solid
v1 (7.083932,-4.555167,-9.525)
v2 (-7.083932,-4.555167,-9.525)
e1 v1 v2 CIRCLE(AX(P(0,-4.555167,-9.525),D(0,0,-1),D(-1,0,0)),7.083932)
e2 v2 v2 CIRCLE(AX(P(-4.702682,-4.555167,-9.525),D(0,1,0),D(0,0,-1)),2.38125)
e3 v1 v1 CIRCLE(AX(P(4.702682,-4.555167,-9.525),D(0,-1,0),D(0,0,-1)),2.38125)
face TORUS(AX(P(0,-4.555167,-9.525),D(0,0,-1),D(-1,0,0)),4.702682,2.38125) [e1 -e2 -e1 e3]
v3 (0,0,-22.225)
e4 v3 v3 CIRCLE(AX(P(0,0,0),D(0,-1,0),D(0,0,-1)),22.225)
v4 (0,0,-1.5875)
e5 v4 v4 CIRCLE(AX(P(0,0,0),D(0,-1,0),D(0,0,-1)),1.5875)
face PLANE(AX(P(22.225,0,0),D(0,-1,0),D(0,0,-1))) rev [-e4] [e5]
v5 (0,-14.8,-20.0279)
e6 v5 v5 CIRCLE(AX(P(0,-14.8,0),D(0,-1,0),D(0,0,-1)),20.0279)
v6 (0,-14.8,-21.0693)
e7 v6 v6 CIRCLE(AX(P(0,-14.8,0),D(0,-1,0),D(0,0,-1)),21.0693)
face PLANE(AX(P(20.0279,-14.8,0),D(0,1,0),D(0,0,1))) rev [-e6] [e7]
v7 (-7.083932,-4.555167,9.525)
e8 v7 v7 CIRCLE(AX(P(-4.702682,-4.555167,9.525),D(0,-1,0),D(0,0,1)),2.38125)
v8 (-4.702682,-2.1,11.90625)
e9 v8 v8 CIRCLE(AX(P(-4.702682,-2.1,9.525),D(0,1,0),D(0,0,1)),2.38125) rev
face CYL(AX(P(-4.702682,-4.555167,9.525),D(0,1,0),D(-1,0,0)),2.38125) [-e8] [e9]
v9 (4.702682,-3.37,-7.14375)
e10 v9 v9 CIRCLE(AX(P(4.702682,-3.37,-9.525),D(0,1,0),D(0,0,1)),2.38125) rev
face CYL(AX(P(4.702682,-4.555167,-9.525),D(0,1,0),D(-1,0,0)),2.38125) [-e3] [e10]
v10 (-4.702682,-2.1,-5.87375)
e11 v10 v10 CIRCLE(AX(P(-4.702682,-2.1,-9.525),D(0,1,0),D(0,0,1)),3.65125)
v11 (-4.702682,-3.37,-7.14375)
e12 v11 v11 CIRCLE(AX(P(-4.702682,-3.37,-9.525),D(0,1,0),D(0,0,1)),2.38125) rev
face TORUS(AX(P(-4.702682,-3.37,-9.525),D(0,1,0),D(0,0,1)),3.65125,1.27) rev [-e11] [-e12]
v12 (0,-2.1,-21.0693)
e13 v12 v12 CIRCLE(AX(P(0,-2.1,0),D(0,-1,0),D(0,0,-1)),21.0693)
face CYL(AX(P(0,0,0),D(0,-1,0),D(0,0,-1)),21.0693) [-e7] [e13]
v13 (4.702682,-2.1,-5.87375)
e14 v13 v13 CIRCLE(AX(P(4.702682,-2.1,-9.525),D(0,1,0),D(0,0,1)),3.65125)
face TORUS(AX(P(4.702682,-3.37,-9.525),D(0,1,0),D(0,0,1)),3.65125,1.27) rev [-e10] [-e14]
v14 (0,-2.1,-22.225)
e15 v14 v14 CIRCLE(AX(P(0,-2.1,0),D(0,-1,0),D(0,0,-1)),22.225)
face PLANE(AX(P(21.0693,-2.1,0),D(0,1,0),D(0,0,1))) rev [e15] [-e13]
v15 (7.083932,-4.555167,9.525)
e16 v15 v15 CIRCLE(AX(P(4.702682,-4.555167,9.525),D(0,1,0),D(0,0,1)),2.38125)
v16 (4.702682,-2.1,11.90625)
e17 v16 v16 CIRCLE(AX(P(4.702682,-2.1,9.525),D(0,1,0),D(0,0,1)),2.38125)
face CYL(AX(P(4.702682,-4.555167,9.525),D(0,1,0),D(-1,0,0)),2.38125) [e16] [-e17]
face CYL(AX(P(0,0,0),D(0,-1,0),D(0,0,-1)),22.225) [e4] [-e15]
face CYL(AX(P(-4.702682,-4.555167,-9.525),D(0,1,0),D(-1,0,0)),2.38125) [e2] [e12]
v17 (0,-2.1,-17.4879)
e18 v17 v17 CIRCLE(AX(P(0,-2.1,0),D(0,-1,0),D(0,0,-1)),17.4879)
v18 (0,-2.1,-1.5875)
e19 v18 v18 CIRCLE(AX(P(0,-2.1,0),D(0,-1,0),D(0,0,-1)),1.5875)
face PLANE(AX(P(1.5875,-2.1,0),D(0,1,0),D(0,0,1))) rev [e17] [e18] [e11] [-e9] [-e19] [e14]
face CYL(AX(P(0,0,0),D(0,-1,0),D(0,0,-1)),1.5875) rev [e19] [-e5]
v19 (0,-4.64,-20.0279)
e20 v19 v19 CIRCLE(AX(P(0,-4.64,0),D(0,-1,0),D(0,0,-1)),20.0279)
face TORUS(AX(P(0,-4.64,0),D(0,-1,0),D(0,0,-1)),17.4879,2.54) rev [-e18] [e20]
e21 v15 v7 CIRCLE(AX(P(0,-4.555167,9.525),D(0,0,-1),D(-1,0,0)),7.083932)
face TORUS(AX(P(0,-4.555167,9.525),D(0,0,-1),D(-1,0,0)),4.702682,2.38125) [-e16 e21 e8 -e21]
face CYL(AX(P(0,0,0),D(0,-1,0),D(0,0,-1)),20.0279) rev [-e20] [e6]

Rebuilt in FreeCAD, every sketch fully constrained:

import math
import FreeCAD as App
import Part
import Sketcher

V = App.Vector
Q = App.Units.Quantity


def edges_at(feature, points):
    """Names of the edges that pass closest to the given points."""
    edges = feature.Shape.Edges
    near = lambda p: min(range(len(edges)), key=lambda i: edges[i].distToShape(Part.Vertex(*p))[0])
    return sorted({f"Edge{near(p) + 1}" for p in points})

doc = App.newDocument("Part")
body = doc.addObject("PartDesign::Body", "Body")

sketch1 = doc.addObject("Sketcher::SketchObject", "Sketch")
body.addObject(sketch1)
sketch1.AttachmentSupport = (doc.XY_Plane, [""])
sketch1.MapMode = "FlatFace"
sketch1.addGeometry(Part.LineSegment(V(-21.1, -2.1, 0), V(-21.1, -14.8, 0)), False)
sketch1.addGeometry(Part.LineSegment(V(-21.1, -14.8, 0), V(-20, -14.8, 0)), False)
sketch1.addGeometry(Part.LineSegment(V(-20, -14.8, 0), V(-20, -4.6, 0)), False)
sketch1.addGeometry(Part.ArcOfCircle(Part.Circle(V(-17.5, -4.6, 0), V(0, 0, 1), 2.5), math.radians(90), math.radians(180)), False)
sketch1.addGeometry(Part.LineSegment(V(-17.5, -2.1, 0), V(-1.6, -2.1, 0)), False)
sketch1.addGeometry(Part.LineSegment(V(-1.6, -2.1, 0), V(-1.6, 0, 0)), False)
sketch1.addGeometry(Part.LineSegment(V(-1.6, 0, 0), V(-22.2, 0, 0)), False)
sketch1.addGeometry(Part.LineSegment(V(-22.2, 0, 0), V(-22.2, -2.1, 0)), False)
sketch1.addGeometry(Part.LineSegment(V(-22.2, -2.1, 0), V(-21.1, -2.1, 0)), False)
sketch1.addConstraint(Sketcher.Constraint("Coincident", 0, 2, 1, 1))
sketch1.addConstraint(Sketcher.Constraint("Coincident", 1, 2, 2, 1))
sketch1.addConstraint(Sketcher.Constraint("Tangent", 2, 2, 3, 2))
sketch1.addConstraint(Sketcher.Constraint("Tangent", 3, 1, 4, 1))
sketch1.addConstraint(Sketcher.Constraint("Coincident", 4, 2, 5, 1))
sketch1.addConstraint(Sketcher.Constraint("Coincident", 5, 2, 6, 1))
sketch1.addConstraint(Sketcher.Constraint("Coincident", 6, 2, 7, 1))
sketch1.addConstraint(Sketcher.Constraint("Coincident", 7, 2, 8, 1))
sketch1.addConstraint(Sketcher.Constraint("Coincident", 8, 2, 0, 1))
sketch1.addConstraint(Sketcher.Constraint("Vertical", 0))
sketch1.addConstraint(Sketcher.Constraint("Horizontal", 1))
sketch1.addConstraint(Sketcher.Constraint("Vertical", 2))
sketch1.addConstraint(Sketcher.Constraint("Horizontal", 4))
sketch1.addConstraint(Sketcher.Constraint("Vertical", 5))
sketch1.addConstraint(Sketcher.Constraint("Horizontal", 6))
sketch1.addConstraint(Sketcher.Constraint("Vertical", 7))
sketch1.addConstraint(Sketcher.Constraint("Horizontal", 8))
sketch1.addConstraint(Sketcher.Constraint("PointOnObject", 5, 2, -1))
sketch1.addConstraint(Sketcher.Constraint("Horizontal", 4, 2, 7, 2))
sketch1.addConstraint(Sketcher.Constraint("Radius", 3, Q("0.1 in")))
sketch1.addConstraint(Sketcher.Constraint("DistanceY", 0, 2, 0, 1, Q("0.5 in")))
sketch1.addConstraint(Sketcher.Constraint("DistanceX", 1, 1, 1, 2, Q("0.041 in")))
sketch1.addConstraint(Sketcher.Constraint("DistanceX", 4, 1, 4, 2, Q("0.626 in")))
sketch1.addConstraint(Sketcher.Constraint("DistanceX", 6, 2, 6, 1, Q("0.8125 in")))
sketch1.addConstraint(Sketcher.Constraint("DistanceX", 4, 2, -1, 1, Q("0.0625 in")))
sketch1.addConstraint(Sketcher.Constraint("DistanceY", 5, 1, 5, 2, Q("2.1 mm")))
revolution = doc.addObject("PartDesign::Revolution", "Revolution")
body.addObject(revolution)
revolution.Profile = sketch1
revolution.ReferenceAxis = (sketch1, ["V_Axis"])
revolution.Angle = 360

sketch2 = doc.addObject("Sketcher::SketchObject", "Sketch001")
body.addObject(sketch2)
sketch2.AttachmentSupport = (doc.XZ_Plane, [""])
sketch2.MapMode = "FlatFace"
sketch2.AttachmentOffset = App.Placement(V(0, 0, 2.1), App.Rotation())
sketch2.addGeometry(Part.Circle(V(4.7, -9.5, 0), V(0, 0, 1), 2.4), False)
sketch2.addConstraint(Sketcher.Constraint("Diameter", 0, Q("0.1875 in")))
sketch2.addConstraint(Sketcher.Constraint("DistanceY", 0, 3, -1, 1, Q("0.375 in")))
sketch2.addConstraint(Sketcher.Constraint("DistanceX", -1, 1, 0, 3, Q("4.702682 mm")))

sketch3 = doc.addObject("Sketcher::SketchObject", "Sketch002")
body.addObject(sketch3)
sketch3.AttachmentSupport = (doc.XY_Plane, [""])
sketch3.MapMode = "FlatFace"
sketch3.AttachmentOffset = App.Placement(V(0, 0, -0.375 * 25.4), App.Rotation())
sketch3.addGeometry(Part.LineSegment(V(-1.6, -2.1, 0), V(-1.6, -4.6, 0)), False)
sketch3.addGeometry(Part.ArcOfCircle(Part.Circle(V(0, -4.6, 0), V(0, 0, 1), 1.6), math.radians(180), math.radians(360)), False)
sketch3.addGeometry(Part.LineSegment(V(1.6, -4.6, 0), V(1.6, -2.1, 0)), False)
sketch3.addConstraint(Sketcher.Constraint("Tangent", 0, 2, 1, 1))
sketch3.addConstraint(Sketcher.Constraint("Tangent", 1, 2, 2, 1))
sketch3.addConstraint(Sketcher.Constraint("Vertical", 0))
sketch3.addConstraint(Sketcher.Constraint("Vertical", 2))
sketch3.addConstraint(Sketcher.Constraint("Symmetric", 0, 1, 2, 2, -2))
sketch3.addConstraint(Sketcher.Constraint("Radius", 1, Q("0.0625 in")))
sketch3.addConstraint(Sketcher.Constraint("DistanceY", 0, 1, -1, 1, Q("2.1 mm")))
sketch3.addConstraint(Sketcher.Constraint("DistanceY", 0, 2, 0, 1, Q("2.455167 mm")))
doc.recompute()

additivepipe = doc.addObject("PartDesign::AdditivePipe", "AdditivePipe")
body.addObject(additivepipe)
additivepipe.Profile = sketch2
additivepipe.Spine = (sketch3, ["Edge1", "Edge2", "Edge3"])
doc.recompute()

fillet = doc.addObject("PartDesign::Fillet", "Fillet")
body.addObject(fillet)
fillet.Base = (additivepipe, edges_at(additivepipe, [(2.321, -2.1, -9.525), (-2.321, -2.1, -9.525)]))
fillet.Radius = Q("0.05 in")
doc.recompute()

mirrored = doc.addObject("PartDesign::Mirrored", "Mirrored")
body.addObject(mirrored)
mirrored.Originals = [additivepipe]
mirrored.MirrorPlane = (doc.XY_Plane, [""])
body.Tip = mirrored

doc.recompute()
